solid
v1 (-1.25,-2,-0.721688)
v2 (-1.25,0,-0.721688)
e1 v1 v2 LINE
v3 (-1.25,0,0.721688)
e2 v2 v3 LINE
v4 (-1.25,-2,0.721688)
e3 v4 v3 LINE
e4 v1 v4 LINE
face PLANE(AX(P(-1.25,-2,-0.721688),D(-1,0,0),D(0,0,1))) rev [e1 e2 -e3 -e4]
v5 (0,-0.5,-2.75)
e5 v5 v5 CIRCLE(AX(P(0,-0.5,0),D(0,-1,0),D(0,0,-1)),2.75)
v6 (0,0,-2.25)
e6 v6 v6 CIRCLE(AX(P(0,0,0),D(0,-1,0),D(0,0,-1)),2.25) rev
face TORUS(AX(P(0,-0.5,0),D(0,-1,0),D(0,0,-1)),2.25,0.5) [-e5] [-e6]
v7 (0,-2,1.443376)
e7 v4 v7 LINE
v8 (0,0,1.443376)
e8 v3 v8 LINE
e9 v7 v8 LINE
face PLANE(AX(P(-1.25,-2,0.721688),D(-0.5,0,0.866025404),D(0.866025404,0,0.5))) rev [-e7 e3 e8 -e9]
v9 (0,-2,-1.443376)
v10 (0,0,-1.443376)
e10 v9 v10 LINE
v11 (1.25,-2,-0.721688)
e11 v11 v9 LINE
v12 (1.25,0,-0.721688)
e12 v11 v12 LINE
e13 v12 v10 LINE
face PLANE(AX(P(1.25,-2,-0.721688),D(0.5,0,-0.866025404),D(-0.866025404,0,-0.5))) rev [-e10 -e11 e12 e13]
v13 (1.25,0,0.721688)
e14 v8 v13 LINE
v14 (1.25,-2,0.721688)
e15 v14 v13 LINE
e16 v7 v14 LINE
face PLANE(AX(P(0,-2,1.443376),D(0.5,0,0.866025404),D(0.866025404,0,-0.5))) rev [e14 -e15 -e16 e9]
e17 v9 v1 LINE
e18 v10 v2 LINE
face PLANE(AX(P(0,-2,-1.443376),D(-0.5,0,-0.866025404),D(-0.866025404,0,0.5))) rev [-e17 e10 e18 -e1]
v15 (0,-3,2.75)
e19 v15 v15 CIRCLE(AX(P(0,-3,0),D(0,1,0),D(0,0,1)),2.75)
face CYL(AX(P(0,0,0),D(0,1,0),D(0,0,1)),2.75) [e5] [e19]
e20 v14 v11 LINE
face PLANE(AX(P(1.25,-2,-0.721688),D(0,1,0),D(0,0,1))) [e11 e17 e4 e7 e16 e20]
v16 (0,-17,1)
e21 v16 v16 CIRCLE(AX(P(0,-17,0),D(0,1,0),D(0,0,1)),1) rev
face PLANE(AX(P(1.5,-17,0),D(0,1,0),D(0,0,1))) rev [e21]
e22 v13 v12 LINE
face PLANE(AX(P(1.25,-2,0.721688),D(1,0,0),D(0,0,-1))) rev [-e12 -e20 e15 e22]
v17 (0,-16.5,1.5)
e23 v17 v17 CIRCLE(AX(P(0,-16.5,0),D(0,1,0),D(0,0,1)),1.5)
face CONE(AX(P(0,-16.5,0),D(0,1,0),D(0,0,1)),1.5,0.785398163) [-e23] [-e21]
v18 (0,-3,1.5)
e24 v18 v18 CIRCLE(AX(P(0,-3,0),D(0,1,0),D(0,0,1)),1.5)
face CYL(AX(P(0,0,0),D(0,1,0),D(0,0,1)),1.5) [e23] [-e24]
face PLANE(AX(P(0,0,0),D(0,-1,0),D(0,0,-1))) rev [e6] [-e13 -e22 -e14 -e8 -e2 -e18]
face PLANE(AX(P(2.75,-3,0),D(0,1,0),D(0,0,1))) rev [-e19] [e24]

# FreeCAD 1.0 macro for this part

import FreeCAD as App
import Part
import Sketcher
from FreeCAD import Vector
Q = App.Units.Quantity


def edges_at(feature, points):
    """Names of the edges that pass closest to the given points."""
    edges = feature.Shape.Edges
    near = lambda p: min(range(len(edges)), key=lambda i: edges[i].distToShape(Part.Vertex(*p))[0])
    return sorted({f"Edge{near(p) + 1}" for p in points})

doc = App.newDocument("Part")
body = doc.addObject("PartDesign::Body", "Body")

sketch1 = body.newObject("Sketcher::SketchObject", "Sketch")
sketch1.AttachmentSupport = (doc.getObject("XY_Plane"), [""])
sketch1.MapMode = "FlatFace"
sketch1.addGeometry([
    Part.LineSegment(Vector(2.75, 0, 0), Vector(0, 0, 0)),
    Part.LineSegment(Vector(0, 0, 0), Vector(0, -17, 0)),
    Part.LineSegment(Vector(0, -17, 0), Vector(1.5, -17, 0)),
    Part.LineSegment(Vector(1.5, -17, 0), Vector(1.5, -3, 0)),
    Part.LineSegment(Vector(1.5, -3, 0), Vector(2.75, -3, 0)),
    Part.LineSegment(Vector(2.75, -3, 0), Vector(2.75, 0, 0)),
], False)
sketch1.addConstraint([
    Sketcher.Constraint("Coincident", 0, 2, 1, 1),
    Sketcher.Constraint("Coincident", 1, 2, 2, 1),
    Sketcher.Constraint("Coincident", 2, 2, 3, 1),
    Sketcher.Constraint("Coincident", 3, 2, 4, 1),
    Sketcher.Constraint("Coincident", 4, 2, 5, 1),
    Sketcher.Constraint("Coincident", 5, 2, 0, 1),
    Sketcher.Constraint("Horizontal", 0),
    Sketcher.Constraint("Vertical", 1),
    Sketcher.Constraint("Horizontal", 2),
    Sketcher.Constraint("Vertical", 3),
    Sketcher.Constraint("Horizontal", 4),
    Sketcher.Constraint("Vertical", 5),
    Sketcher.Constraint("Coincident", 0, 2, -1, 1),
    Sketcher.Constraint("DistanceY", 1, 2, 1, 1, Q("17 mm")),
    Sketcher.Constraint("DistanceY", 3, 1, 3, 2, Q("14 mm")),
    Sketcher.Constraint("DistanceX", 2, 1, 2, 2, Q("1.5 mm")),
    Sketcher.Constraint("DistanceX", 0, 2, 0, 1, Q("2.75 mm")),
])
revolution = body.newObject("PartDesign::Revolution", "Revolution")
revolution.Profile = sketch1
revolution.ReferenceAxis = (sketch1, ["V_Axis"])
revolution.Angle = 360

sketch2 = body.newObject("Sketcher::SketchObject", "Sketch001")
sketch2.AttachmentSupport = (doc.getObject("XZ_Plane"), [""])
sketch2.MapMode = "FlatFace"
sketch2.addGeometry([
    Part.LineSegment(Vector(1.25, -0.721688, 0), Vector(0, -1.443376, 0)),
    Part.LineSegment(Vector(0, -1.443376, 0), Vector(-1.25, -0.721688, 0)),
    Part.LineSegment(Vector(-1.25, -0.721688, 0), Vector(-1.25, 0.721688, 0)),
    Part.LineSegment(Vector(-1.25, 0.721688, 0), Vector(0, 1.443376, 0)),
    Part.LineSegment(Vector(0, 1.443376, 0), Vector(1.25, 0.721688, 0)),
    Part.LineSegment(Vector(1.25, 0.721688, 0), Vector(1.25, -0.721688, 0)),
], False)
sketch2.addConstraint([
    Sketcher.Constraint("Coincident", 0, 2, 1, 1),
    Sketcher.Constraint("Coincident", 1, 2, 2, 1),
    Sketcher.Constraint("Coincident", 2, 2, 3, 1),
    Sketcher.Constraint("Coincident", 3, 2, 4, 1),
    Sketcher.Constraint("Coincident", 4, 2, 5, 1),
    Sketcher.Constraint("Coincident", 5, 2, 0, 1),
    Sketcher.Constraint("Vertical", 2),
    Sketcher.Constraint("Vertical", 5),
    Sketcher.Constraint("Symmetric", 0, 2, 3, 2, -1, 1),
    Sketcher.Constraint("Symmetric", 1, 2, 4, 2, -1, 1),
    Sketcher.Constraint("PointOnObject", 0, 2, -2),
    Sketcher.Constraint("Parallel", 0, 3),
    Sketcher.Constraint("Horizontal", 2, 2, 4, 2),
    Sketcher.Constraint("Angle", 0, Q("-150 deg")),
    Sketcher.Constraint("DistanceX", 2, 2, 4, 2, Q("2.5 mm")),
    Sketcher.Constraint("DistanceY", 2, 1, 2, 2, Q("1.443376 mm")),
])
pocket1 = body.newObject("PartDesign::Pocket", "Pocket")
pocket1.Profile = sketch2
pocket1.Length = 2
pocket1.Reversed = True
doc.recompute()

chamfer = body.newObject("PartDesign::Chamfer", "Chamfer")
chamfer.Base = (pocket1, edges_at(pocket1, [(0, -17, -1.5)]))
chamfer.Size = 0.5
doc.recompute()

fillet = body.newObject("PartDesign::Fillet", "Fillet")
fillet.Base = (chamfer, edges_at(chamfer, [(0, 0, -2.75)]))
fillet.Radius = 0.5

doc.recompute()
